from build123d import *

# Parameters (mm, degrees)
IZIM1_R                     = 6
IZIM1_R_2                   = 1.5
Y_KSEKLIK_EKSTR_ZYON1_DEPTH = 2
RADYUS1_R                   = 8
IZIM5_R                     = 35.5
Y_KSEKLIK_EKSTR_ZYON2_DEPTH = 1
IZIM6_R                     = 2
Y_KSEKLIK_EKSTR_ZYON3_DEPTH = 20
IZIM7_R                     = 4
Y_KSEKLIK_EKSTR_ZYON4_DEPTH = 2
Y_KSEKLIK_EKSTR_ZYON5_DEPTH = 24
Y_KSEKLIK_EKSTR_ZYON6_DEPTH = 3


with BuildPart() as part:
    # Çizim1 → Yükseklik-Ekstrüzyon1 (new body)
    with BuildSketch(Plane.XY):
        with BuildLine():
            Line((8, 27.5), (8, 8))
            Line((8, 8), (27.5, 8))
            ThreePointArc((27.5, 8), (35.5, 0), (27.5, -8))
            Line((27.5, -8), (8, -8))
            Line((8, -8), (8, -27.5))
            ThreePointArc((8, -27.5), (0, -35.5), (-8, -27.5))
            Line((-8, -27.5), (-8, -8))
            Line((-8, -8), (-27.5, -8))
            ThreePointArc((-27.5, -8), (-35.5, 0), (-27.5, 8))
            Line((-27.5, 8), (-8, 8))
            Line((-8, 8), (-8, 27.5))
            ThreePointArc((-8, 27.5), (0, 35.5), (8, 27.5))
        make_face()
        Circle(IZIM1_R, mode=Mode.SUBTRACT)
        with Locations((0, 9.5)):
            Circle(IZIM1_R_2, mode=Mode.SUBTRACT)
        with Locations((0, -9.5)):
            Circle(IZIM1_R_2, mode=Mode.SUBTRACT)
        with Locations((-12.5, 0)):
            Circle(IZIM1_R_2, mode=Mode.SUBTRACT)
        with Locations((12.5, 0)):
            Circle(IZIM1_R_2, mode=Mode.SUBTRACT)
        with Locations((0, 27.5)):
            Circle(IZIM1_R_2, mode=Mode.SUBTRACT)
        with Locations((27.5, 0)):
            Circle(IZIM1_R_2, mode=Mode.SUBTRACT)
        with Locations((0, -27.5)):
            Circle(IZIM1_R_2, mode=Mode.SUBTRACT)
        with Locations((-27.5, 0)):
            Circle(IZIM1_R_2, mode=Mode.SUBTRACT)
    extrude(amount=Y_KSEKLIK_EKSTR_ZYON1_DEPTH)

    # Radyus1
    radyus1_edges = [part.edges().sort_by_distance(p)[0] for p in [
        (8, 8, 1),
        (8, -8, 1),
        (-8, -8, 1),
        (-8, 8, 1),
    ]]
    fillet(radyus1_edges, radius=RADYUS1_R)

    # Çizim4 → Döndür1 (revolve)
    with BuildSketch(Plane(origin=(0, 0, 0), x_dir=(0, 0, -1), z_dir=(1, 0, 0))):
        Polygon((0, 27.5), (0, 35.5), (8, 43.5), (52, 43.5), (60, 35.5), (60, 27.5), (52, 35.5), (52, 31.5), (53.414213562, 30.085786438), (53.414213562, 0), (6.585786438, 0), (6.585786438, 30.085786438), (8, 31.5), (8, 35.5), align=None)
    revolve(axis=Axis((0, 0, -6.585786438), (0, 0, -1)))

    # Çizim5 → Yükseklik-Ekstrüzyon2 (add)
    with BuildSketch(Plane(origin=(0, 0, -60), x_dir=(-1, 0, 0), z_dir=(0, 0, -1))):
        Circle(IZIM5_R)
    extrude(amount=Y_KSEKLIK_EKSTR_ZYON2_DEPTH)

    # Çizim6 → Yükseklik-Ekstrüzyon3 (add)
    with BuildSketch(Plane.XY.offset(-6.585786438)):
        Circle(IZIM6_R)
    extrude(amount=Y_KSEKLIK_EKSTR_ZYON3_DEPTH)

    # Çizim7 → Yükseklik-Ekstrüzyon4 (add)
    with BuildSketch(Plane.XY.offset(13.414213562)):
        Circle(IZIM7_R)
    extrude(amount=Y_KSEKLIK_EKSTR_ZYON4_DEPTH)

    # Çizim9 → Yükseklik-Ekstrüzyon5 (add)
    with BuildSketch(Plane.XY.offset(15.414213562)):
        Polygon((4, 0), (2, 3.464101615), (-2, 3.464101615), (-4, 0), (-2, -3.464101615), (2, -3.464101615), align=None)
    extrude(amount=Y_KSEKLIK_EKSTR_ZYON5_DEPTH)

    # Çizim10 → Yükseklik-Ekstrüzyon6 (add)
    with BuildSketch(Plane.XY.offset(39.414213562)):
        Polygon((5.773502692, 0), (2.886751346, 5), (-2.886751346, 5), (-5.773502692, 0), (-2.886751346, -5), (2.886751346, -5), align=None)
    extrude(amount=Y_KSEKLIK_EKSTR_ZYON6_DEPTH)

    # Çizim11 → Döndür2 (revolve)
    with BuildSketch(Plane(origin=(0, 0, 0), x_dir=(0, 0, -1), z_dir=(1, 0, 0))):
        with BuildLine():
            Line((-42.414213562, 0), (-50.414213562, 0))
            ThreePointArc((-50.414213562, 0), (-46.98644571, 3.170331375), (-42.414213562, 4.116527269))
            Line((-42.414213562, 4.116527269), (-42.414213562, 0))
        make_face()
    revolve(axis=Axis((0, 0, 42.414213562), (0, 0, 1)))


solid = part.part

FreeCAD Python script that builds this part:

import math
import FreeCAD as App
import Part
import Sketcher

V = App.Vector
Q = App.Units.Quantity


def edges_at(feature, points):
    """Names of the edges that pass closest to the given points."""
    edges = feature.Shape.Edges
    near = lambda p: min(range(len(edges)), key=lambda i: edges[i].distToShape(Part.Vertex(*p))[0])
    return sorted({f"Edge{near(p) + 1}" for p in points})

doc = App.newDocument("Part")
body = doc.addObject("PartDesign::Body", "Body")

# Sketch on XY plane
sketch1 = doc.addObject("Sketcher::SketchObject", "Sketch")
body.addObject(sketch1)
sketch1.AttachmentSupport = (doc.XY_Plane, [""])
sketch1.MapMode = "FlatFace"
sketch1.addGeometry([
    Part.LineSegment(V(8, 8, 0), V(8, 27.5, 0)),  # 0
    Part.ArcOfCircle(Part.Circle(V(0, 27.5, 0), V(0, 0, 1), 8), math.radians(0), math.radians(180)),  # 1
    Part.LineSegment(V(-8, 27.5, 0), V(-8, 8, 0)),  # 2
    Part.LineSegment(V(-8, 8, 0), V(-27.5, 8, 0)),  # 3
    Part.ArcOfCircle(Part.Circle(V(-27.5, 0, 0), V(0, 0, 1), 8), math.radians(90), math.radians(270)),  # 4
    Part.LineSegment(V(-27.5, -8, 0), V(-8, -8, 0)),  # 5
    Part.LineSegment(V(-8, -8, 0), V(-8, -27.5, 0)),  # 6
    Part.ArcOfCircle(Part.Circle(V(0, -27.5, 0), V(0, 0, 1), 8), math.radians(180), math.radians(360)),  # 7
    Part.LineSegment(V(8, -27.5, 0), V(8, -8, 0)),  # 8
    Part.LineSegment(V(8, -8, 0), V(27.5, -8, 0)),  # 9
    Part.ArcOfCircle(Part.Circle(V(27.5, 0, 0), V(0, 0, 1), 8), math.radians(-90), math.radians(90)),  # 10
    Part.LineSegment(V(27.5, 8, 0), V(8, 8, 0)),  # 11
    Part.Circle(V(0, -27.5, 0), V(0, 0, 1), 1.5),  # 12
    Part.Circle(V(0, -9.5, 0), V(0, 0, 1), 1.5),  # 13
    Part.Circle(V(27.5, 0, 0), V(0, 0, 1), 1.5),  # 14
    Part.Circle(V(12.5, 0, 0), V(0, 0, 1), 1.5),  # 15
    Part.Circle(V(0, 0, 0), V(0, 0, 1), 6),  # 16
    Part.Circle(V(-12.5, 0, 0), V(0, 0, 1), 1.5),  # 17
    Part.Circle(V(0, 9.5, 0), V(0, 0, 1), 1.5),  # 18
    Part.Circle(V(-27.5, 0, 0), V(0, 0, 1), 1.5),  # 19
    Part.Circle(V(0, 27.5, 0), V(0, 0, 1), 1.5),  # 20
], False)
sketch1.addConstraint([
    Sketcher.Constraint("Tangent", 0, 2, 1, 1),
    Sketcher.Constraint("Tangent", 1, 2, 2, 1),
    Sketcher.Constraint("Coincident", 2, 2, 3, 1),
    Sketcher.Constraint("Tangent", 3, 2, 4, 1),
    Sketcher.Constraint("Tangent", 4, 2, 5, 1),
    Sketcher.Constraint("Coincident", 5, 2, 6, 1),
    Sketcher.Constraint("Tangent", 6, 2, 7, 1),
    Sketcher.Constraint("Tangent", 7, 2, 8, 1),
    Sketcher.Constraint("Coincident", 8, 2, 9, 1),
    Sketcher.Constraint("Tangent", 9, 2, 10, 1),
    Sketcher.Constraint("Tangent", 10, 2, 11, 1),
    Sketcher.Constraint("Coincident", 11, 2, 0, 1),
    Sketcher.Constraint("Vertical", 0),
    Sketcher.Constraint("Vertical", 2),
    Sketcher.Constraint("Horizontal", 3),
    Sketcher.Constraint("Horizontal", 5),
    Sketcher.Constraint("Vertical", 6),
    Sketcher.Constraint("Vertical", 8),
    Sketcher.Constraint("Horizontal", 9),
    Sketcher.Constraint("Horizontal", 11),
    Sketcher.Constraint("Coincident", 16, 3, -1, 1),
    Sketcher.Constraint("Coincident", 12, 3, 7, 3),
    Sketcher.Constraint("Coincident", 14, 3, 10, 3),
    Sketcher.Constraint("Coincident", 19, 3, 4, 3),
    Sketcher.Constraint("Coincident", 20, 3, 1, 3),
    Sketcher.Constraint("Equal", 1, 4),
    Sketcher.Constraint("Equal", 4, 7),
    Sketcher.Constraint("Equal", 7, 10),
    Sketcher.Constraint("Equal", 12, 13),
    Sketcher.Constraint("Equal", 13, 14),
    Sketcher.Constraint("Equal", 14, 15),
    Sketcher.Constraint("Equal", 15, 17),
    Sketcher.Constraint("Equal", 17, 18),
    Sketcher.Constraint("Equal", 18, 19),
    Sketcher.Constraint("Equal", 19, 20),
    Sketcher.Constraint("Symmetric", 1, 3, 7, 3, -1, 1),
    Sketcher.Constraint("Symmetric", 4, 3, 10, 3, -1, 1),
    Sketcher.Constraint("Symmetric", 15, 3, 17, 3, -1, 1),
    Sketcher.Constraint("Symmetric", 13, 3, 18, 3, -1, 1),
    Sketcher.Constraint("Symmetric", 5, 2, 8, 2, -2),
    Sketcher.Constraint("PointOnObject", 13, 3, -2),
    Sketcher.Constraint("PointOnObject", 15, 3, -1),
    Sketcher.Constraint("Equal", 11, 0),
    Sketcher.Constraint("Diameter", 12, 3.0),
    Sketcher.Constraint("Diameter", 16, 12.0),
    Sketcher.Constraint("Radius", 1, 8.0),
    Sketcher.Constraint("DistanceX", 3, 2, 3, 1, 19.5),
    Sketcher.Constraint("DistanceY", 7, 3, 13, 3, 18.0),
    Sketcher.Constraint("DistanceX", 15, 3, 10, 3, 15.0),
])
pad1 = doc.addObject("PartDesign::Pad", "Pad")
body.addObject(pad1)
pad1.Profile = sketch1
pad1.Length = 2
doc.recompute()

fillet = doc.addObject("PartDesign::Fillet", "Fillet")
body.addObject(fillet)
fillet.Base = (pad1, edges_at(pad1, [
    (8, 8, 1),
    (8, -8, 1),
    (-8, -8, 1),
    (-8, 8, 1),
]))
fillet.Radius = 8

# Sketch on YZ plane
sketch2 = doc.addObject("Sketcher::SketchObject", "Sketch001")
body.addObject(sketch2)
sketch2.AttachmentSupport = (doc.YZ_Plane, [""])
sketch2.MapMode = "FlatFace"
sketch2.addGeometry([
    Part.LineSegment(V(35.5, 0, 0), V(27.5, 0, 0)),  # 0
    Part.LineSegment(V(27.5, 0, 0), V(35.5, -8, 0)),  # 1
    Part.LineSegment(V(35.5, -8, 0), V(31.5, -8, 0)),  # 2
    Part.LineSegment(V(31.5, -8, 0), V(30.1, -6.6, 0)),  # 3
    Part.LineSegment(V(30.1, -6.6, 0), V(0, -6.6, 0)),  # 4
    Part.LineSegment(V(0, -6.6, 0), V(0, -53.4, 0)),  # 5
    Part.LineSegment(V(0, -53.4, 0), V(30.1, -53.4, 0)),  # 6
    Part.LineSegment(V(30.1, -53.4, 0), V(31.5, -52, 0)),  # 7
    Part.LineSegment(V(31.5, -52, 0), V(35.5, -52, 0)),  # 8
    Part.LineSegment(V(35.5, -52, 0), V(27.5, -60, 0)),  # 9
    Part.LineSegment(V(27.5, -60, 0), V(35.5, -60, 0)),  # 10
    Part.LineSegment(V(35.5, -60, 0), V(43.5, -52, 0)),  # 11
    Part.LineSegment(V(43.5, -52, 0), V(43.5, -8, 0)),  # 12
    Part.LineSegment(V(43.5, -8, 0), V(35.5, 0, 0)),  # 13
], False)
sketch2.addConstraint([
    Sketcher.Constraint("Coincident", 0, 2, 1, 1),
    Sketcher.Constraint("Coincident", 1, 2, 2, 1),
    Sketcher.Constraint("Coincident", 2, 2, 3, 1),
    Sketcher.Constraint("Coincident", 3, 2, 4, 1),
    Sketcher.Constraint("Coincident", 4, 2, 5, 1),
    Sketcher.Constraint("Coincident", 5, 2, 6, 1),
    Sketcher.Constraint("Coincident", 6, 2, 7, 1),
    Sketcher.Constraint("Coincident", 7, 2, 8, 1),
    Sketcher.Constraint("Coincident", 8, 2, 9, 1),
    Sketcher.Constraint("Coincident", 9, 2, 10, 1),
    Sketcher.Constraint("Coincident", 10, 2, 11, 1),
    Sketcher.Constraint("Coincident", 11, 2, 12, 1),
    Sketcher.Constraint("Coincident", 12, 2, 13, 1),
    Sketcher.Constraint("Coincident", 13, 2, 0, 1),
    Sketcher.Constraint("Horizontal", 0),
    Sketcher.Constraint("Horizontal", 2),
    Sketcher.Constraint("Horizontal", 4),
    Sketcher.Constraint("Vertical", 5),
    Sketcher.Constraint("Horizontal", 6),
    Sketcher.Constraint("Horizontal", 8),
    Sketcher.Constraint("Horizontal", 10),
    Sketcher.Constraint("Vertical", 12),
    Sketcher.Constraint("PointOnObject", 0, 2, -1),
    Sketcher.Constraint("PointOnObject", 4, 2, -2),
    Sketcher.Constraint("Parallel", 1, 3),
    Sketcher.Constraint("Perpendicular", 3, 7),
    Sketcher.Constraint("Parallel", 7, 9),
    Sketcher.Constraint("Parallel", 9, 11),
    Sketcher.Constraint("Perpendicular", 11, 13),
    Sketcher.Constraint("Horizontal", 8, 2, 11, 2),
    Sketcher.Constraint("Horizontal", 2, 2, 12, 2),
    Sketcher.Constraint("Vertical", 3, 2, 6, 2),
    Sketcher.Constraint("Vertical", 2, 2, 7, 2),
    Sketcher.Constraint("Vertical", 1, 2, 8, 2),
    Sketcher.Constraint("Vertical", 0, 2, 9, 2),
    Sketcher.Constraint("Vertical", 8, 2, 10, 2),
    Sketcher.Constraint("Equal", 3, 7),
    Sketcher.Constraint("DistanceX", 0, 2, 0, 1, 8.0),
    Sketcher.Constraint("DistanceX", 2, 2, 2, 1, 4.0),
    Sketcher.Constraint("DistanceY", 12, 1, 12, 2, 44.0),
    Sketcher.Constraint("Distance", 3, 2.0),
    Sketcher.Constraint("DistanceX", -1, 1, 0, 2, 27.5),
])
revolution = doc.addObject("PartDesign::Revolution", "Revolution")
body.addObject(revolution)
revolution.Profile = sketch2
revolution.ReferenceAxis = (sketch2, ["V_Axis"])
revolution.Angle = 360

# Sketch on XY plane
sketch3 = doc.addObject("Sketcher::SketchObject", "Sketch002")
body.addObject(sketch3)
sketch3.AttachmentSupport = (doc.XY_Plane, [""])
sketch3.MapMode = "FlatFace"
sketch3.AttachmentOffset = App.Placement(V(0, 0, -60), App.Rotation())
sketch3.addGeometry(Part.Circle(V(0, 0, 0), V(0, 0, 1), 36), False)
sketch3.addConstraint([
    Sketcher.Constraint("Coincident", 0, 3, -1, 1),
    Sketcher.Constraint("Diameter", 0, 71.0),
])
pad2 = doc.addObject("PartDesign::Pad", "Pad001")
body.addObject(pad2)
pad2.Profile = sketch3
pad2.Length = 1
pad2.Reversed = True

# Sketch on XY plane
sketch4 = doc.addObject("Sketcher::SketchObject", "Sketch003")
body.addObject(sketch4)
sketch4.AttachmentSupport = (doc.XY_Plane, [""])
sketch4.MapMode = "FlatFace"
sketch4.AttachmentOffset = App.Placement(V(0, 0, -6.585786), App.Rotation())
sketch4.addGeometry(Part.Circle(V(0, 0, 0), V(0, 0, 1), 2), False)
sketch4.addConstraint([
    Sketcher.Constraint("Coincident", 0, 3, -1, 1),
    Sketcher.Constraint("Diameter", 0, 4.0),
])
pad3 = doc.addObject("PartDesign::Pad", "Pad002")
body.addObject(pad3)
pad3.Profile = sketch4
pad3.Length = 20

# Sketch on XY plane
sketch5 = doc.addObject("Sketcher::SketchObject", "Sketch004")
body.addObject(sketch5)
sketch5.AttachmentSupport = (doc.XY_Plane, [""])
sketch5.MapMode = "FlatFace"
sketch5.AttachmentOffset = App.Placement(V(0, 0, 13.414214), App.Rotation())
sketch5.addGeometry(Part.Circle(V(0, 0, 0), V(0, 0, 1), 4), False)
sketch5.addConstraint([
    Sketcher.Constraint("Coincident", 0, 3, -1, 1),
    Sketcher.Constraint("Diameter", 0, 8.0),
])
pad4 = doc.addObject("PartDesign::Pad", "Pad003")
body.addObject(pad4)
pad4.Profile = sketch5
pad4.Length = 2

# Sketch on XY plane
sketch6 = doc.addObject("Sketcher::SketchObject", "Sketch005")
body.addObject(sketch6)
sketch6.AttachmentSupport = (doc.XY_Plane, [""])
sketch6.MapMode = "FlatFace"
sketch6.AttachmentOffset = App.Placement(V(0, 0, 15.414214), App.Rotation())
sketch6.addGeometry([
    Part.LineSegment(V(4, 0, 0), V(2, 3.5, 0)),  # 0
    Part.LineSegment(V(2, 3.5, 0), V(-2, 3.5, 0)),  # 1
    Part.LineSegment(V(-2, 3.5, 0), V(-4, 0, 0)),  # 2
    Part.LineSegment(V(-4, 0, 0), V(-2, -3.5, 0)),  # 3
    Part.LineSegment(V(-2, -3.5, 0), V(2, -3.5, 0)),  # 4
    Part.LineSegment(V(2, -3.5, 0), V(4, 0, 0)),  # 5
], False)
sketch6.addConstraint([
    Sketcher.Constraint("Coincident", 0, 2, 1, 1),
    Sketcher.Constraint("Coincident", 1, 2, 2, 1),
    Sketcher.Constraint("Coincident", 2, 2, 3, 1),
    Sketcher.Constraint("Coincident", 3, 2, 4, 1),
    Sketcher.Constraint("Coincident", 4, 2, 5, 1),
    Sketcher.Constraint("Coincident", 5, 2, 0, 1),
    Sketcher.Constraint("Horizontal", 1),
    Sketcher.Constraint("Horizontal", 4),
    Sketcher.Constraint("Symmetric", 0, 2, 3, 2, -1, 1),
    Sketcher.Constraint("Symmetric", 2, 2, 5, 2, -1, 1),
    Sketcher.Constraint("PointOnObject", 2, 2, -1),
    Sketcher.Constraint("Parallel", 2, 5),
    Sketcher.Constraint("Vertical", 1, 2, 3, 2),
    Sketcher.Constraint("DistanceX", 1, 2, 1, 1, 4.0),
    Sketcher.Constraint("Angle", 0, Q("120 deg")),
    Sketcher.Constraint("Distance", 0, 4.0),
])
pad5 = doc.addObject("PartDesign::Pad", "Pad004")
body.addObject(pad5)
pad5.Profile = sketch6
pad5.Length = 24

# Sketch on XY plane
sketch7 = doc.addObject("Sketcher::SketchObject", "Sketch006")
body.addObject(sketch7)
sketch7.AttachmentSupport = (doc.XY_Plane, [""])
sketch7.MapMode = "FlatFace"
sketch7.AttachmentOffset = App.Placement(V(0, 0, 39.414214), App.Rotation())
sketch7.addGeometry([
    Part.LineSegment(V(6, 0, 0), V(3, 5, 0)),  # 0
    Part.LineSegment(V(3, 5, 0), V(-3, 5, 0)),  # 1
    Part.LineSegment(V(-3, 5, 0), V(-6, 0, 0)),  # 2
    Part.LineSegment(V(-6, 0, 0), V(-3, -5, 0)),  # 3
    Part.LineSegment(V(-3, -5, 0), V(3, -5, 0)),  # 4
    Part.LineSegment(V(3, -5, 0), V(6, 0, 0)),  # 5
], False)
sketch7.addConstraint([
    Sketcher.Constraint("Coincident", 0, 2, 1, 1),
    Sketcher.Constraint("Coincident", 1, 2, 2, 1),
    Sketcher.Constraint("Coincident", 2, 2, 3, 1),
    Sketcher.Constraint("Coincident", 3, 2, 4, 1),
    Sketcher.Constraint("Coincident", 4, 2, 5, 1),
    Sketcher.Constraint("Coincident", 5, 2, 0, 1),
    Sketcher.Constraint("Horizontal", 1),
    Sketcher.Constraint("Horizontal", 4),
    Sketcher.Constraint("Symmetric", 0, 2, 3, 2, -1, 1),
    Sketcher.Constraint("Symmetric", 2, 2, 5, 2, -1, 1),
    Sketcher.Constraint("PointOnObject", 2, 2, -1),
    Sketcher.Constraint("Parallel", 2, 5),
    Sketcher.Constraint("Vertical", 1, 2, 3, 2),
    Sketcher.Constraint("Angle", 0, Q("120 deg")),
    Sketcher.Constraint("DistanceY", -1, 1, 0, 2, 5.0),
    Sketcher.Constraint("DistanceX", 1, 2, 1, 1, 5.773503),
])
pad6 = doc.addObject("PartDesign::Pad", "Pad005")
body.addObject(pad6)
pad6.Profile = sketch7
pad6.Length = 3

# Sketch on YZ plane
sketch8 = doc.addObject("Sketcher::SketchObject", "Sketch007")
body.addObject(sketch8)
sketch8.AttachmentSupport = (doc.YZ_Plane, [""])
sketch8.MapMode = "FlatFace"
sketch8.addGeometry([
    Part.LineSegment(V(0, 50.4, 0), V(0, 42.4, 0)),
    Part.LineSegment(V(0, 42.4, 0), V(4.1, 42.4, 0)),
    Part.ArcOfCircle(Part.Circle(V(-4.6, 43, 0), V(0, 0, 1), 8.7), math.radians(-4), math.radians(58)),
], False)
sketch8.addConstraint([
    Sketcher.Constraint("Coincident", 0, 2, 1, 1),
    Sketcher.Constraint("Coincident", 1, 2, 2, 1),
    Sketcher.Constraint("Coincident", 2, 2, 0, 1),
    Sketcher.Constraint("Vertical", 0),
    Sketcher.Constraint("Horizontal", 1),
    Sketcher.Constraint("PointOnObject", 0, 2, -2),
    Sketcher.Constraint("DistanceY", 0, 2, 0, 1, 8.0),
    Sketcher.Constraint("Radius", 2, 8.715653),
    Sketcher.Constraint("DistanceX", 1, 1, 1, 2, 4.116527),
    Sketcher.Constraint("DistanceY", -1, 1, 2, 3, 42.998642),
])
revolution2 = doc.addObject("PartDesign::Revolution", "Revolution001")
body.addObject(revolution2)
revolution2.Profile = sketch8
revolution2.ReferenceAxis = (sketch8, ["V_Axis"])
revolution2.Angle = 360

doc.recompute()
